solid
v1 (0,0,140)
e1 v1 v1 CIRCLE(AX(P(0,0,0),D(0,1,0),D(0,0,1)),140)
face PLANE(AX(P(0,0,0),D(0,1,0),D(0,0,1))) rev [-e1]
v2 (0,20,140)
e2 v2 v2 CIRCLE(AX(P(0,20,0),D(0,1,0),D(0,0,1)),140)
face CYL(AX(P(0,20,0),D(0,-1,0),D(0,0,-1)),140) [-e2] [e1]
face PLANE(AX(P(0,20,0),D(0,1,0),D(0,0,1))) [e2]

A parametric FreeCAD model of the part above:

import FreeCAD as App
import Part
import Sketcher

V = App.Vector

doc = App.newDocument("Part")
body = doc.addObject("PartDesign::Body", "Body")

# Sketch on XZ plane
sketch1 = body.newObject("Sketcher::SketchObject", "Sketch")
sketch1.AttachmentSupport = (doc.getObject("XZ_Plane"), [""])
sketch1.MapMode = "FlatFace"
sketch1.addGeometry(Part.Circle(V(0, 0, 0), V(0, 0, 1), 140), False)
sketch1.addConstraint([
    Sketcher.Constraint("Coincident", 0, 3, -1, 1),
    Sketcher.Constraint("Diameter", 0, 280.0),
])
pad1 = body.newObject("PartDesign::Pad", "Pad")
pad1.Profile = sketch1
pad1.Length = 20
pad1.Reversed = True

doc.recompute()
